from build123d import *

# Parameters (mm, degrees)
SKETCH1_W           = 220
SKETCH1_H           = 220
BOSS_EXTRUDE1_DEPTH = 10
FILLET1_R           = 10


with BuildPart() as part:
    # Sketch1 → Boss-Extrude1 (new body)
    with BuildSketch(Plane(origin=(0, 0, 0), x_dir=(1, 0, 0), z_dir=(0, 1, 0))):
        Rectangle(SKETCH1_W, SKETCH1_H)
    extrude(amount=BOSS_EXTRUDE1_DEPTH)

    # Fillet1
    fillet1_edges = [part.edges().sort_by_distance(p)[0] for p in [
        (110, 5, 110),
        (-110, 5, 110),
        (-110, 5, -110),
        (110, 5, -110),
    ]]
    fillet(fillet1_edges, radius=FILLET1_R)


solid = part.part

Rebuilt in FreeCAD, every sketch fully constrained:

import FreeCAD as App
import Part
import Sketcher
from FreeCAD import Vector
Q = App.Units.Quantity


def edges_at(feature, points):
    """Names of the edges that pass closest to the given points."""
    edges = feature.Shape.Edges
    near = lambda p: min(range(len(edges)), key=lambda i: edges[i].distToShape(Part.Vertex(*p))[0])
    return sorted({f"Edge{near(p) + 1}" for p in points})


def add_polygon(sketch, points):
    """Adds a closed chain of lines whose ends are joined by coincident constraints."""
    first, n = sketch.GeometryCount, len(points)
    for a, b in zip(points, points[1:] + points[:1]):
        sketch.addGeometry(Part.LineSegment(App.Vector(*a, 0), App.Vector(*b, 0)), False)
    for i in range(n):
        sketch.addConstraint(Sketcher.Constraint("Coincident", first + i, 2, first + (i + 1) % n, 1))

doc = App.newDocument("Part")
params = doc.addObject("Spreadsheet::Sheet", "Params")
for row, (alias, value) in enumerate([
    ("sketch1_width", "220 mm"),
    ("pad1_length", "10 mm"),
    ("fillet_radius", "10 mm"),
], start=1):
    params.set(f"A{row}", alias)
    params.set(f"B{row}", "=" + value)
    params.setAlias(f"B{row}", alias)

body = doc.addObject("PartDesign::Body", "Body")

sketch1 = body.newObject("Sketcher::SketchObject", "Sketch")
sketch1.AttachmentSupport = (doc.getObject("XZ_Plane"), [""])
sketch1.MapMode = "FlatFace"
add_polygon(sketch1, [(-110, -110), (-110, 110), (110, 110), (110, -110)])
sketch1.addConstraint([
    Sketcher.Constraint("Vertical", 0),
    Sketcher.Constraint("Horizontal", 1),
    Sketcher.Constraint("Vertical", 2),
    Sketcher.Constraint("Horizontal", 3),
    Sketcher.Constraint("Symmetric", 0, 2, 2, 2, -1, 1),
    Sketcher.Constraint("Equal", 3, 0),
    Sketcher.Constraint("DistanceX", 1, 1, 1, 2, Q("220 mm")),
])
sketch1.setExpression("Constraints[10]", "Params.sketch1_width")
pad1 = body.newObject("PartDesign::Pad", "Pad")
pad1.Profile = sketch1
pad1.setExpression("Length", "Params.pad1_length")
pad1.Reversed = True
doc.recompute()

fillet = body.newObject("PartDesign::Fillet", "Fillet")
fillet.Base = (pad1, edges_at(pad1, [
    (110, 5, 110),
    (-110, 5, 110),
    (-110, 5, -110),
    (110, 5, -110),
]))
fillet.setExpression("Radius", "Params.fillet_radius")

doc.recompute()
